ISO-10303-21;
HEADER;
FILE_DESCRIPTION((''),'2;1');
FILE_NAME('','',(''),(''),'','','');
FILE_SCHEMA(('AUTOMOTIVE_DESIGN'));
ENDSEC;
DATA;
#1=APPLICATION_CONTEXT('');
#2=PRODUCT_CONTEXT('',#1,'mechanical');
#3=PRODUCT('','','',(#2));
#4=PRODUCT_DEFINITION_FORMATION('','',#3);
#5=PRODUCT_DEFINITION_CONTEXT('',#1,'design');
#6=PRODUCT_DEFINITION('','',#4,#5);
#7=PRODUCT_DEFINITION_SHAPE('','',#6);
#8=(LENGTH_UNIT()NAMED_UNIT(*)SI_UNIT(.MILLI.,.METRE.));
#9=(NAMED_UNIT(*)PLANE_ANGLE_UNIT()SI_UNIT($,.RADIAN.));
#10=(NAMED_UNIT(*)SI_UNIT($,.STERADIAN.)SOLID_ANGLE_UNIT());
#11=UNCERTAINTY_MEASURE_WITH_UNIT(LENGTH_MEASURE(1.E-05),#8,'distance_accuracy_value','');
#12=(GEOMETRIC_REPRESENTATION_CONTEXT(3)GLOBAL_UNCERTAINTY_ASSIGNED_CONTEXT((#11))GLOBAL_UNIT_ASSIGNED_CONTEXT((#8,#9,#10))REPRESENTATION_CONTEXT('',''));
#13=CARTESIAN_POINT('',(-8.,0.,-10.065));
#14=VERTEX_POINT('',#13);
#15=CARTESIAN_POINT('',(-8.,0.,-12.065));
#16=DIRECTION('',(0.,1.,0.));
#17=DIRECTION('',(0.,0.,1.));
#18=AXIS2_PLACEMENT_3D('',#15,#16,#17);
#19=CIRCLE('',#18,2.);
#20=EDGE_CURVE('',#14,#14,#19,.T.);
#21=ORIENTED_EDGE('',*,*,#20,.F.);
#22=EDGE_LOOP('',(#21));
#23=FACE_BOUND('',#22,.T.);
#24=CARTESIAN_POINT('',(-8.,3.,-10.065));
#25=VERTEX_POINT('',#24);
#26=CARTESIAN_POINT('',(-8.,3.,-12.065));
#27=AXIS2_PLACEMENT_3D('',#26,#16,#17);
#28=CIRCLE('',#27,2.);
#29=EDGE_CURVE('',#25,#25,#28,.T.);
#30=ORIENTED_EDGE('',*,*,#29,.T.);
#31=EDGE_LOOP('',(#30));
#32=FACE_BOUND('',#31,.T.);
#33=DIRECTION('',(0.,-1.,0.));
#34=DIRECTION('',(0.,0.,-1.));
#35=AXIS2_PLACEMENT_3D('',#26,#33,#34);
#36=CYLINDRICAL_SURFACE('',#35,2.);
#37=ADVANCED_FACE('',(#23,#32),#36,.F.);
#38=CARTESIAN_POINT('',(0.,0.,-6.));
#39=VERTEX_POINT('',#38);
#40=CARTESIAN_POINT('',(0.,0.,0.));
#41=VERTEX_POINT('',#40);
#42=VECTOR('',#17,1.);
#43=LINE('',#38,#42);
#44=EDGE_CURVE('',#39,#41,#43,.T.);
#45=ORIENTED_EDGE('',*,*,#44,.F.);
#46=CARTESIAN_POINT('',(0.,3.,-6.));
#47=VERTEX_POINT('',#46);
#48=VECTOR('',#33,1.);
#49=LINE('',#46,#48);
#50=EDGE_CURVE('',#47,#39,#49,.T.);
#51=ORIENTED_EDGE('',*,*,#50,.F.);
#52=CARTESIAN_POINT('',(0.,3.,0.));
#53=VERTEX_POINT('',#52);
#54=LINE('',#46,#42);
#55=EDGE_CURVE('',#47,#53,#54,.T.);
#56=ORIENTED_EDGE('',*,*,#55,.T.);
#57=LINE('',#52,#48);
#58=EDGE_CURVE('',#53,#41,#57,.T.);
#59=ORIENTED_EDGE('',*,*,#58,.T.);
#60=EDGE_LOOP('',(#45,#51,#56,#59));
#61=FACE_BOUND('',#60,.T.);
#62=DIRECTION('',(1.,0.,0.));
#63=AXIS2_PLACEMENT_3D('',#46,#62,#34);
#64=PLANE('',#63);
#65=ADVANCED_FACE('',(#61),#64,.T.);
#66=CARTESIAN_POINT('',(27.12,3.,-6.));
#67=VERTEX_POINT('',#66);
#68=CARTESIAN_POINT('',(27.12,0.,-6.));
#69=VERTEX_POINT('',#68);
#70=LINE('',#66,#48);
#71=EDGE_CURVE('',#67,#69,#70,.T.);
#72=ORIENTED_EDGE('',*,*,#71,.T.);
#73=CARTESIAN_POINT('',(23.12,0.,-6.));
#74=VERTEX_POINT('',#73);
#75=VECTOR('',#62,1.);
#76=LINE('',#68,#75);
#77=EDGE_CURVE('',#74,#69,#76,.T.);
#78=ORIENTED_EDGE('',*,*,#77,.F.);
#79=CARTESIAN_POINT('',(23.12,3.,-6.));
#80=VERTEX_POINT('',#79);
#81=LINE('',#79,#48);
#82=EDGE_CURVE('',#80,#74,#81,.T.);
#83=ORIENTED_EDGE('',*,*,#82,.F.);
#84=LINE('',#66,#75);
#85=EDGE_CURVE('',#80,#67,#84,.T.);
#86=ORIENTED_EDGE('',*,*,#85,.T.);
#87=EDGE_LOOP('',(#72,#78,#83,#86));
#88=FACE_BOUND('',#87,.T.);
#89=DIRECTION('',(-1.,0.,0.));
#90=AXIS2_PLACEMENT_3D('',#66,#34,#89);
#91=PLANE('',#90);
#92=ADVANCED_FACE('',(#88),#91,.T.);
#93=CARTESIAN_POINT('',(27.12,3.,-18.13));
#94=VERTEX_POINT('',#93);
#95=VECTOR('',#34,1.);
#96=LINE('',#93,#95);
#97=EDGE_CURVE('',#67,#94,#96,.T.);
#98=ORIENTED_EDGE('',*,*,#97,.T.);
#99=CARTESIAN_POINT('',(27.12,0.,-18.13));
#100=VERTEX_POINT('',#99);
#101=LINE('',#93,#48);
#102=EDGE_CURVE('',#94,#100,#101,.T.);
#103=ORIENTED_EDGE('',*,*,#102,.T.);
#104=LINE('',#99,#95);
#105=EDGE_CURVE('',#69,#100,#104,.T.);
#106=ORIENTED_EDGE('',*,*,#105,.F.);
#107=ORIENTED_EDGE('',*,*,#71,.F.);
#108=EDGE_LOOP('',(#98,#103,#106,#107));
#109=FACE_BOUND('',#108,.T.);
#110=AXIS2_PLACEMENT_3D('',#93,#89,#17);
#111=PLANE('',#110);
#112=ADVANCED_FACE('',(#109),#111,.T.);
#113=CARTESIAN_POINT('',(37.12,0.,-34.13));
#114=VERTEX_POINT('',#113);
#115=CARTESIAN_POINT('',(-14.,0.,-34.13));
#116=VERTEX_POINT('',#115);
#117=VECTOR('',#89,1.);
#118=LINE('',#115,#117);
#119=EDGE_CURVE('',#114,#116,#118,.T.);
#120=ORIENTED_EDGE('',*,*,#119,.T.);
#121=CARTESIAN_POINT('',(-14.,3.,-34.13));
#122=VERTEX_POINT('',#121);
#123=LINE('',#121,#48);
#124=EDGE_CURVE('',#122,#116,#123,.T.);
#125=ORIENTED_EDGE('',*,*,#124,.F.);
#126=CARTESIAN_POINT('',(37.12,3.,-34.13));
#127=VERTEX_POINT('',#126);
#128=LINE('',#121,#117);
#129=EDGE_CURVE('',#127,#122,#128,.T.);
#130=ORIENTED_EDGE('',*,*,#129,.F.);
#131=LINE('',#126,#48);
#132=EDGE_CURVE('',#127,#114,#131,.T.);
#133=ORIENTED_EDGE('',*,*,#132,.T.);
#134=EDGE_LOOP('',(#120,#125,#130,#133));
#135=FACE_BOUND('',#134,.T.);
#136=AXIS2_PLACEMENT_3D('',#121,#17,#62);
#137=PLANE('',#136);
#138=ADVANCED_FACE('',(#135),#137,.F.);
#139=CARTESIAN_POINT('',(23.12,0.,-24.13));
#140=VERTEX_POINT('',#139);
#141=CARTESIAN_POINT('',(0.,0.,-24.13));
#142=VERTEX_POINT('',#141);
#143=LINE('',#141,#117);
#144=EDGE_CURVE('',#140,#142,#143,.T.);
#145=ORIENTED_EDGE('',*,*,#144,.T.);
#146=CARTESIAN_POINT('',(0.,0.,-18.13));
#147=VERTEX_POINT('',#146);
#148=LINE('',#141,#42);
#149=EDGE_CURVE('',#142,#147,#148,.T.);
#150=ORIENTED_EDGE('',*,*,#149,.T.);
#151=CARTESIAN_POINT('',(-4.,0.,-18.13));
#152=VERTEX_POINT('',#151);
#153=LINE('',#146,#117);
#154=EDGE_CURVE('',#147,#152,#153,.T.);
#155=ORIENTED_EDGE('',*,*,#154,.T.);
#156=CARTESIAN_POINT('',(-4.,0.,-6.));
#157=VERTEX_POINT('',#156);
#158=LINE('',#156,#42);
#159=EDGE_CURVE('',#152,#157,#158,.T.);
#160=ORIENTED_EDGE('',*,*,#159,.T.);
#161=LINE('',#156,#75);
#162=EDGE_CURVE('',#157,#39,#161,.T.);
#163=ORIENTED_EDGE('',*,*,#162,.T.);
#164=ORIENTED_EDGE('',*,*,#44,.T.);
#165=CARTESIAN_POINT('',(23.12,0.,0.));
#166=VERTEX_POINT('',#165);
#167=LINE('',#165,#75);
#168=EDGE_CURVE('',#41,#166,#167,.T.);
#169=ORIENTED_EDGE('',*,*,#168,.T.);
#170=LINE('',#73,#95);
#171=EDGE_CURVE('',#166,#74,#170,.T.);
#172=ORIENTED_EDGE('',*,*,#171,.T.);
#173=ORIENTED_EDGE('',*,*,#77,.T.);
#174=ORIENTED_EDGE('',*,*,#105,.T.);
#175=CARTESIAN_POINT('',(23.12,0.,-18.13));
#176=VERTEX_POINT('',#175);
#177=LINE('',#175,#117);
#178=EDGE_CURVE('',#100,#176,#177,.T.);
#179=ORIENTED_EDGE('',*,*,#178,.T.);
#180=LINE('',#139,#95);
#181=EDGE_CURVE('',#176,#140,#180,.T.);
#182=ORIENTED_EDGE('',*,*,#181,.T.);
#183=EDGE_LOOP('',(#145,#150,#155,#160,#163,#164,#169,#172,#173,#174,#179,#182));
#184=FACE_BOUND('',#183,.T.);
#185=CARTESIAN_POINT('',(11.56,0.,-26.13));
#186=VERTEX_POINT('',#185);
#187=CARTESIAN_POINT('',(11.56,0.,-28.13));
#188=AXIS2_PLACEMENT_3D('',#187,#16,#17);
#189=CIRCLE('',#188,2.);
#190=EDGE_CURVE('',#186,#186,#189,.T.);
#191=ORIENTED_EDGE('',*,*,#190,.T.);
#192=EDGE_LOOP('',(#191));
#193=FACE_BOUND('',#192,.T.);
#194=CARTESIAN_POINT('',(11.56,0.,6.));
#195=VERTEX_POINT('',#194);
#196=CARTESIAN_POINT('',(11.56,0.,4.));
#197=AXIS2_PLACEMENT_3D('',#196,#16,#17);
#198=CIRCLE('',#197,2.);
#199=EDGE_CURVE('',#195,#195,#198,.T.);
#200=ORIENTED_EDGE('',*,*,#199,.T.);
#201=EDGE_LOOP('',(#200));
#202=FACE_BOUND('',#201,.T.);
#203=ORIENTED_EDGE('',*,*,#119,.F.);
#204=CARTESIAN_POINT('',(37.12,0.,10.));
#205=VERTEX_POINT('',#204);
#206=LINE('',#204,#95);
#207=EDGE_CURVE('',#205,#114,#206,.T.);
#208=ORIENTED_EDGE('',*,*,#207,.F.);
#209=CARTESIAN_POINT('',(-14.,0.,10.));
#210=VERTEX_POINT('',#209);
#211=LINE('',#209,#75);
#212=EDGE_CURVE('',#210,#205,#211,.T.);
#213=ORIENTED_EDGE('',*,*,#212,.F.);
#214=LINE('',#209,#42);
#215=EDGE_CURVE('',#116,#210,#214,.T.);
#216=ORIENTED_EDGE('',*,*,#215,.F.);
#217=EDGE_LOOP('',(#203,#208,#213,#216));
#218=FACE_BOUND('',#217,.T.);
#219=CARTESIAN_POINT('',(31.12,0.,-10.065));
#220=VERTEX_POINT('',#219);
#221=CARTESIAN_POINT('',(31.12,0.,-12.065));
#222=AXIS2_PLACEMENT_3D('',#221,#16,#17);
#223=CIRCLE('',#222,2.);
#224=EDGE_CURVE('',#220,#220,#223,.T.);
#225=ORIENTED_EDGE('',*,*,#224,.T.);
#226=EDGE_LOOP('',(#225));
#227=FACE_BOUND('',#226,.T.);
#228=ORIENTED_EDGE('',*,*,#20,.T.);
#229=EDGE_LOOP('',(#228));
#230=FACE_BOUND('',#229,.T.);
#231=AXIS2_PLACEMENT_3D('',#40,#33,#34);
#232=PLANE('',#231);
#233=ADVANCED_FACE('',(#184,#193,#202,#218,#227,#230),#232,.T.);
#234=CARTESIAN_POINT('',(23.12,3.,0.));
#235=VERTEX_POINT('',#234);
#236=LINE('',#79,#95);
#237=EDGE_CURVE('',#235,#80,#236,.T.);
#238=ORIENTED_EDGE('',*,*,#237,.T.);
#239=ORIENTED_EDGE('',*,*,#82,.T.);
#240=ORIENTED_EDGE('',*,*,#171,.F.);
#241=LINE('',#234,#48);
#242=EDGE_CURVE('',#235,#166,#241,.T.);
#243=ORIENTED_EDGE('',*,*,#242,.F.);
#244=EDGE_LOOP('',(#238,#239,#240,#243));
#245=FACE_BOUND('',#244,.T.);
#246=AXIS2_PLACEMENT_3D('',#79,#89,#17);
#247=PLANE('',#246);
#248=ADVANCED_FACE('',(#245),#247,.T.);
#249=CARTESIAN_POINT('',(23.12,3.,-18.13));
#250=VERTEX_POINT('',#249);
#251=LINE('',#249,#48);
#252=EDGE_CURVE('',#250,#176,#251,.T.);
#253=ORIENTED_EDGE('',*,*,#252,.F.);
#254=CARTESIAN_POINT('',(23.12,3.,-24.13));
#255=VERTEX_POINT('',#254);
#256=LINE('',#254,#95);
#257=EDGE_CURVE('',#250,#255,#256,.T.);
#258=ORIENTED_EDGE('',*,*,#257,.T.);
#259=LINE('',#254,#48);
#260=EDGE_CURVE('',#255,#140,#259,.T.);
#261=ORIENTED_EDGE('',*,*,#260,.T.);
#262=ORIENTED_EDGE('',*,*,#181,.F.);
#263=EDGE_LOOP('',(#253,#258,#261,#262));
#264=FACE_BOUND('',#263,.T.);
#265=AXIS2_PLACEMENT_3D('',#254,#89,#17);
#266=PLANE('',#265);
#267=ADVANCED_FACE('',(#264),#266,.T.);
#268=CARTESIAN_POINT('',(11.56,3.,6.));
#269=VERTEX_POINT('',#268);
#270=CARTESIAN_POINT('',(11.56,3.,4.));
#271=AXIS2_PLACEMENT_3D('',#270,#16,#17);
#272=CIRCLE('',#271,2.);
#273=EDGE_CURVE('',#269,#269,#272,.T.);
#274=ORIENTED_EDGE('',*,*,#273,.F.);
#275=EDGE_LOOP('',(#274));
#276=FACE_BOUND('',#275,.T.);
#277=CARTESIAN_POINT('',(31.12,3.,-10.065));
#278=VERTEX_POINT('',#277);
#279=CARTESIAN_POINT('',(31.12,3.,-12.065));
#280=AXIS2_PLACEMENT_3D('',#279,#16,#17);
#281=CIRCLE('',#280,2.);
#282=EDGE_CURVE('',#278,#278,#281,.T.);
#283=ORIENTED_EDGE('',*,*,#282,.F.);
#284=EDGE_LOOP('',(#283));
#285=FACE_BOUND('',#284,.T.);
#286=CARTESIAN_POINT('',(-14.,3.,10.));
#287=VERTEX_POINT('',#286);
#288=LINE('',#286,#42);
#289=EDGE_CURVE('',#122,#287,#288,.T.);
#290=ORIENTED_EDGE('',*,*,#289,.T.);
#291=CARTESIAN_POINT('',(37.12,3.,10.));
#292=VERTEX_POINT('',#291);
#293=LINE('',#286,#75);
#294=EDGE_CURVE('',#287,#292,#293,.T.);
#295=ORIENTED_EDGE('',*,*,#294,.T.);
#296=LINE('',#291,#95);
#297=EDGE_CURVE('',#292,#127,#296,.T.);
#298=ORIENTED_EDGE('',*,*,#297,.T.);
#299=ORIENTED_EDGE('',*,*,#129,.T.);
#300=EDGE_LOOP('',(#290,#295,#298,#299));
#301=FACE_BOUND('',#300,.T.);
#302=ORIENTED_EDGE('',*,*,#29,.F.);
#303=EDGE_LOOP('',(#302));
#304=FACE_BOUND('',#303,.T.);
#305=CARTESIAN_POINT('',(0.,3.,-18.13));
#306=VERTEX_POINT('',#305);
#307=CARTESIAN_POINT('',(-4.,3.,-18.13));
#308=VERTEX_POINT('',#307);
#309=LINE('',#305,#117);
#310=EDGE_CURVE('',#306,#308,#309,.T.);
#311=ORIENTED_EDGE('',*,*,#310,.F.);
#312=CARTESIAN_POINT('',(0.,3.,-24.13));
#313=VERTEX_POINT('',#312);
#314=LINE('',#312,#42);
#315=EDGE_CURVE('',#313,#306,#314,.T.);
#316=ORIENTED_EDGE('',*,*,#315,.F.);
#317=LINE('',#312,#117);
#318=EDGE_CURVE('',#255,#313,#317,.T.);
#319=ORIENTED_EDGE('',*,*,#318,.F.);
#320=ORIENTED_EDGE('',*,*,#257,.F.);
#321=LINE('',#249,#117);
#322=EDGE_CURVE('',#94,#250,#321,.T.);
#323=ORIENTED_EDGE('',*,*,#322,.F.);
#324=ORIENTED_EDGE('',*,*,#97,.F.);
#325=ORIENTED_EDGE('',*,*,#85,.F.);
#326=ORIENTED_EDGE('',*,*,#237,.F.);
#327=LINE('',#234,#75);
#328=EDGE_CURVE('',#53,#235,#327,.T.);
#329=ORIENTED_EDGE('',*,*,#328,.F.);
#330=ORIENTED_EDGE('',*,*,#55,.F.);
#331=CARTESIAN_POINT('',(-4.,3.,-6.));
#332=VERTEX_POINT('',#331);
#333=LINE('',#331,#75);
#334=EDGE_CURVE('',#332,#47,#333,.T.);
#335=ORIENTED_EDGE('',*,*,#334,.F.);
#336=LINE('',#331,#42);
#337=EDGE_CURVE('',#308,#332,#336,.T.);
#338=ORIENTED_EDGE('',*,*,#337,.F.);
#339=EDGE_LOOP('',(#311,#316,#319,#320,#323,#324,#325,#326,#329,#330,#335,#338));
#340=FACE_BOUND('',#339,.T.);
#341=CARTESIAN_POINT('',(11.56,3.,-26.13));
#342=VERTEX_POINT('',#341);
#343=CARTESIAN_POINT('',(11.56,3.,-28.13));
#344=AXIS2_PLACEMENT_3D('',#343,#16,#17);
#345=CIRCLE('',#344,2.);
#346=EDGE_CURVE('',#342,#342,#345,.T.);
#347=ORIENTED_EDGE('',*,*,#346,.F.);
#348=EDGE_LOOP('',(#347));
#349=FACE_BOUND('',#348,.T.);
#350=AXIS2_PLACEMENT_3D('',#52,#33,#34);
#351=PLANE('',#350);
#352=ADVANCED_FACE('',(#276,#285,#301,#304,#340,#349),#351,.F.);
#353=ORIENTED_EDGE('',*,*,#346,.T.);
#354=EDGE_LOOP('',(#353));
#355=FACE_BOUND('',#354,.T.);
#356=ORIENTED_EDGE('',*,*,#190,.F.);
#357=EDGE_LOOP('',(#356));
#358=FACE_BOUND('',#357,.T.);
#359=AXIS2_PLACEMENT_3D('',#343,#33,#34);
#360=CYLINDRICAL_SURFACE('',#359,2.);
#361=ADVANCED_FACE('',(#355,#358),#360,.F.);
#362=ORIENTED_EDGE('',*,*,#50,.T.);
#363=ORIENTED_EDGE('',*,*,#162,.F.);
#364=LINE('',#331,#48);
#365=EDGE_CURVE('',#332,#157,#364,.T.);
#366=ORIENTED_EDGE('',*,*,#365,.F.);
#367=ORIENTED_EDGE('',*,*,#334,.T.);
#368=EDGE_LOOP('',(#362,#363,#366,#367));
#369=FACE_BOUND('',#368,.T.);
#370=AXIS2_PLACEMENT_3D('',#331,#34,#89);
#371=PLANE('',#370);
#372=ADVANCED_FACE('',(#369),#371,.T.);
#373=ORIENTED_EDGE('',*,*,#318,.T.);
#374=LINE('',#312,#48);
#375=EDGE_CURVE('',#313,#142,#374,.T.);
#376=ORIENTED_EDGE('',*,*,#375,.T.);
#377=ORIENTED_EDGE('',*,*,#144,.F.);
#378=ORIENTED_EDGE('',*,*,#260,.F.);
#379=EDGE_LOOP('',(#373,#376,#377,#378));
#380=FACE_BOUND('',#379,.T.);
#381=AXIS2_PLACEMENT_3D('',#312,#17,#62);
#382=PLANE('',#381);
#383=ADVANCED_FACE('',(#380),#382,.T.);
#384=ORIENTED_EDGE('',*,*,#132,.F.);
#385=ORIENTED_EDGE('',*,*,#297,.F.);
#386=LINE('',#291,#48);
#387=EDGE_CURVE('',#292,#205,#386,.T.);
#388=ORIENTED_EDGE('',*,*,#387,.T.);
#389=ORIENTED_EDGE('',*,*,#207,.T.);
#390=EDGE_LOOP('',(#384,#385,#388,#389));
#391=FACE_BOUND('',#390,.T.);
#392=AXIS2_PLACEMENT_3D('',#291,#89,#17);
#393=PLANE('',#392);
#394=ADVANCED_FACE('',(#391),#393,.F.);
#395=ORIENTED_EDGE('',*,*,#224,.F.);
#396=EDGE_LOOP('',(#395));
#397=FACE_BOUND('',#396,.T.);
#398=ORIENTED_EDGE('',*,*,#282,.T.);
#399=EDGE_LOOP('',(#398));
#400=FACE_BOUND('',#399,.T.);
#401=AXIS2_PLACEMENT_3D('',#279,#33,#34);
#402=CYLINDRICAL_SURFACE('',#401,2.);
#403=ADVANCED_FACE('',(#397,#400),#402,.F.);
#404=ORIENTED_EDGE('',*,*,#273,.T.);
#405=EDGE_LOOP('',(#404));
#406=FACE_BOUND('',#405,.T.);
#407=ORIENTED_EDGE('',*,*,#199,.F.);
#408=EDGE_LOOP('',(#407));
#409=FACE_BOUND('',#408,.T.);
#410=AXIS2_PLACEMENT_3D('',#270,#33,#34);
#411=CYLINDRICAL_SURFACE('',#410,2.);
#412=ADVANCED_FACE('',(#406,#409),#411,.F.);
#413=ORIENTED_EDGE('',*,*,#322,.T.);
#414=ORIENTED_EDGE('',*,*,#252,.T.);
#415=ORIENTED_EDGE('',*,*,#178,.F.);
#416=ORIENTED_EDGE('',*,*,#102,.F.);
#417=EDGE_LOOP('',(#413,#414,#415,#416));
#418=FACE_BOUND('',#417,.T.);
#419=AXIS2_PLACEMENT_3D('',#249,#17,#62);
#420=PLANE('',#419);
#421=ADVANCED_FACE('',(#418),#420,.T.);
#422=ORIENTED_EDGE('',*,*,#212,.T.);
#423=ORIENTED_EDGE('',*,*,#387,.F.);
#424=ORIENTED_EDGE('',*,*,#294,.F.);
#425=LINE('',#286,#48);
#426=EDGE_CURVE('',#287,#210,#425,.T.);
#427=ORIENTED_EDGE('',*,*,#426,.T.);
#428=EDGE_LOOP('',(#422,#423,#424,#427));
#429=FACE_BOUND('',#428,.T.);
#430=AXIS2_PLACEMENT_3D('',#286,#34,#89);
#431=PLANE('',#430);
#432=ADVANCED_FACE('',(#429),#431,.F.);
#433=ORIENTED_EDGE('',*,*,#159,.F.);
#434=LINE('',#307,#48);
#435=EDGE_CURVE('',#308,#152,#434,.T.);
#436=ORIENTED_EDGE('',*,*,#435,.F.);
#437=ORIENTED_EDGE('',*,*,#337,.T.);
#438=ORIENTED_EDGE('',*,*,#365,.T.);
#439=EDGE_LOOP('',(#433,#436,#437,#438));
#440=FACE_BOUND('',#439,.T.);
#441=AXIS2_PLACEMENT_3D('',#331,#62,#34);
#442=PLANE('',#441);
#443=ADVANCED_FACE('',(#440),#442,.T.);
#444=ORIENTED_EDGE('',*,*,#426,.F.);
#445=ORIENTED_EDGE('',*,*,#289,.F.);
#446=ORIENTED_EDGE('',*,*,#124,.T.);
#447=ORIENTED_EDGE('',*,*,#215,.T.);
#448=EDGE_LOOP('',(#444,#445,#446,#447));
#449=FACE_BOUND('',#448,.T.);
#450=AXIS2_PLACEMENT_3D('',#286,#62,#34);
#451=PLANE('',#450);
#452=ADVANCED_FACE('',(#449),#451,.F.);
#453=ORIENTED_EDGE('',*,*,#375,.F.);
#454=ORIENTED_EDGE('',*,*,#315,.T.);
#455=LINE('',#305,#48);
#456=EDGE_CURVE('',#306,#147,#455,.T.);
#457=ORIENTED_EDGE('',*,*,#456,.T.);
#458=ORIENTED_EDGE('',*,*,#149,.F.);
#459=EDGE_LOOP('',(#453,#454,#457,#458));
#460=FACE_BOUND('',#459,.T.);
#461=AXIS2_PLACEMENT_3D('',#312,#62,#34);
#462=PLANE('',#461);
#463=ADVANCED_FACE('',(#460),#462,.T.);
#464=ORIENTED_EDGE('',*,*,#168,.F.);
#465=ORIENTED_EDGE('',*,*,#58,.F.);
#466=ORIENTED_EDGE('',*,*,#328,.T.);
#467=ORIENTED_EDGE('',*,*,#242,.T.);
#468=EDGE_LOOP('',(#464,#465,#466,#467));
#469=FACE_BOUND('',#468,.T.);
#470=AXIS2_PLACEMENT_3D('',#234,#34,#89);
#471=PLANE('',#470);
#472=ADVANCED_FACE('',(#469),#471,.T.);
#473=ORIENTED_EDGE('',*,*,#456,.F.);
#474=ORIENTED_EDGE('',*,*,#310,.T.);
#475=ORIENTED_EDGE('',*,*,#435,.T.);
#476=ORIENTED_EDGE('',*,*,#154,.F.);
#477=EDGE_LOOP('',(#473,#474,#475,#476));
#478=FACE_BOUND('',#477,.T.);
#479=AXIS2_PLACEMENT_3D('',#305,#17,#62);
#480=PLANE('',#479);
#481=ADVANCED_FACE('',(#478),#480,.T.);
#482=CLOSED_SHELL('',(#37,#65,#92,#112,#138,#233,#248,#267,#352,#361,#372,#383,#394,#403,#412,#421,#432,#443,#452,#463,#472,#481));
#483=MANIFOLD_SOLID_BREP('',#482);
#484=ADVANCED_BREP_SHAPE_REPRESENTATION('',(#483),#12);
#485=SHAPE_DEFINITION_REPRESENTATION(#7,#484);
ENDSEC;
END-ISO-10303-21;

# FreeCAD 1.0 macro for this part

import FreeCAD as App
import Part
import Sketcher
from FreeCAD import Vector
Q = App.Units.Quantity


def add_polygon(sketch, points):
    """Adds a closed chain of lines whose ends are joined by coincident constraints."""
    first, n = sketch.GeometryCount, len(points)
    for a, b in zip(points, points[1:] + points[:1]):
        sketch.addGeometry(Part.LineSegment(App.Vector(*a, 0), App.Vector(*b, 0)), False)
    for i in range(n):
        sketch.addConstraint(Sketcher.Constraint("Coincident", first + i, 2, first + (i + 1) % n, 1))

doc = App.newDocument("Part")
body = doc.addObject("PartDesign::Body", "Body")

# Sketch on XZ plane
sketch1 = body.newObject("Sketcher::SketchObject", "Sketch")
sketch1.AttachmentSupport = (doc.getObject("XZ_Plane"), [""])
sketch1.MapMode = "FlatFace"
add_polygon(sketch1, [(-14, -34.1), (-14, 10), (37.1, 10), (37.1, -34.1)])  # lines 0-3
sketch1.addGeometry(Part.Circle(Vector(11.6, 4, 0), Vector(0, 0, 1), 2), False)  # 4
sketch1.addGeometry(Part.Circle(Vector(-8, -12.1, 0), Vector(0, 0, 1), 2), False)  # 5
add_polygon(sketch1, [(0, -24.1), (23.1, -24.1), (23.1, -18.1), (27.1, -18.1), (27.1, -6), (23.1, -6), (23.1, 0), (0, 0), (0, -6), (-4, -6), (-4, -18.1), (0, -18.1)])  # lines 6-17
sketch1.addGeometry(Part.Circle(Vector(31.1, -12.1, 0), Vector(0, 0, 1), 2), False)  # 18
sketch1.addGeometry(Part.Circle(Vector(11.6, -28.1, 0), Vector(0, 0, 1), 2), False)  # 19
sketch1.addConstraint([
    Sketcher.Constraint("Vertical", 0),
    Sketcher.Constraint("Horizontal", 1),
    Sketcher.Constraint("Vertical", 2),
    Sketcher.Constraint("Horizontal", 3),
    Sketcher.Constraint("Horizontal", 6),
    Sketcher.Constraint("Vertical", 7),
    Sketcher.Constraint("Horizontal", 8),
    Sketcher.Constraint("Vertical", 9),
    Sketcher.Constraint("Horizontal", 10),
    Sketcher.Constraint("Vertical", 11),
    Sketcher.Constraint("Horizontal", 12),
    Sketcher.Constraint("Vertical", 13),
    Sketcher.Constraint("Horizontal", 14),
    Sketcher.Constraint("Vertical", 15),
    Sketcher.Constraint("Horizontal", 16),
    Sketcher.Constraint("Vertical", 17),
    Sketcher.Constraint("Coincident", 12, 2, -1, 1),
    Sketcher.Constraint("Equal", 4, 5),
    Sketcher.Constraint("Equal", 5, 18),
    Sketcher.Constraint("Equal", 18, 19),
    Sketcher.Constraint("PointOnObject", 16, 2, -2),
    Sketcher.Constraint("Horizontal", 5, 3, 18, 3),
    Sketcher.Constraint("Horizontal", 10, 2, 13, 2),
    Sketcher.Constraint("Horizontal", 8, 2, 15, 2),
    Sketcher.Constraint("Vertical", 4, 3, 19, 3),
    Sketcher.Constraint("Vertical", 7, 2, 10, 2),
    Sketcher.Constraint("Equal", 10, 14),
    Sketcher.Constraint("Equal", 7, 11),
    Sketcher.Constraint("Diameter", 4, Q("4 mm")),
    Sketcher.Constraint("DistanceX", 8, 1, 8, 2, Q("4 mm")),
    Sketcher.Constraint("DistanceY", 7, 1, 7, 2, Q("6 mm")),
    Sketcher.Constraint("DistanceY", -1, 1, 4, 3, Q("4 mm")),
    Sketcher.Constraint("DistanceX", 5, 3, -1, 1, Q("8 mm")),
    Sketcher.Constraint("DistanceX", 0, 2, -1, 1, Q("14 mm")),
    Sketcher.Constraint("DistanceY", -1, 1, 0, 2, Q("10 mm")),
    Sketcher.Constraint("DistanceX", 18, 3, 1, 2, Q("6 mm")),
    Sketcher.Constraint("DistanceY", 2, 2, 19, 3, Q("6 mm")),
    Sketcher.Constraint("DistanceY", 19, 3, 6, 2, Q("4 mm")),
    Sketcher.Constraint("DistanceX", 6, 2, 18, 3, Q("8 mm")),
    Sketcher.Constraint("DistanceX", 1, 1, 1, 2, Q("51.12 mm")),
    Sketcher.Constraint("DistanceY", 0, 1, 0, 2, Q("44.13 mm")),
    Sketcher.Constraint("DistanceX", -1, 1, 4, 3, Q("11.56 mm")),
    Sketcher.Constraint("DistanceY", 5, 3, -1, 1, Q("12.065 mm")),
])
pad1 = body.newObject("PartDesign::Pad", "Pad")
pad1.Profile = sketch1
pad1.Length = 3
pad1.Reversed = True

doc.recompute()
